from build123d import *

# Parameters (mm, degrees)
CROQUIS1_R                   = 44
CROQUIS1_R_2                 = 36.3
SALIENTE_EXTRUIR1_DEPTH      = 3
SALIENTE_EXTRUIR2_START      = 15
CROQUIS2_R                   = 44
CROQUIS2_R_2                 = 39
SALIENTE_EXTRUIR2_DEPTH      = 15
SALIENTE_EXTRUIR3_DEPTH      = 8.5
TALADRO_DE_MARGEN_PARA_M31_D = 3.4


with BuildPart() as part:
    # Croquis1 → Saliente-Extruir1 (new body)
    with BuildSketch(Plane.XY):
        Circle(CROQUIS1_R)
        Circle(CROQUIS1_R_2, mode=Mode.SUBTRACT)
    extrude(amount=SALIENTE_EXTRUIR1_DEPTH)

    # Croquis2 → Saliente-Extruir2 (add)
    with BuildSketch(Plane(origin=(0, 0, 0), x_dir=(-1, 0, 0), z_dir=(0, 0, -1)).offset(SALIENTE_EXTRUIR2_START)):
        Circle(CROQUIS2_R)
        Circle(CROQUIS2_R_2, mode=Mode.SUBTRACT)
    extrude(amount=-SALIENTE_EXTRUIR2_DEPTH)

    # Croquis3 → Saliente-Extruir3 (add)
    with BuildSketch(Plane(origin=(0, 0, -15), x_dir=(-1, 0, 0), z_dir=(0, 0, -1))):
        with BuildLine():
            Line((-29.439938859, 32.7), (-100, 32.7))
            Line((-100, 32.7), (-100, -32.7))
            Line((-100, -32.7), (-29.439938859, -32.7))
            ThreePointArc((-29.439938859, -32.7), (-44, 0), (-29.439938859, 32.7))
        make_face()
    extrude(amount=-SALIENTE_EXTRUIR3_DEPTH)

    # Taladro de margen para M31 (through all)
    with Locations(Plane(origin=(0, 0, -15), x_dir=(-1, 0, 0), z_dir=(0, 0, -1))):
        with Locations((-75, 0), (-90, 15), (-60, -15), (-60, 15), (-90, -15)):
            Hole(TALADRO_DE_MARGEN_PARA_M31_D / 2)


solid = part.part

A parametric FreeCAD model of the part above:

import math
import FreeCAD as App
import Part
import Sketcher

doc = App.newDocument("Part")
params = doc.addObject("Spreadsheet::Sheet", "Params")
for row, (alias, value) in enumerate([
    ("sketch1_diameter", "88 mm"),
    ("sketch1_diameter2", "72.6 mm"),
    ("pad1_length", "3 mm"),
    ("sketch2_diameter", "88 mm"),
    ("sketch2_diameter2", "78 mm"),
    ("pad2_length", "15 mm"),
    ("sketch3_radius", "44 mm"),
    ("sketch3_height", "65.4 mm"),
    ("pad3_length", "8.5 mm"),
    ("sketch4_diameter", "3.4 mm"),
    ("hole_diameter", "3.4 mm"),
], start=1):
    params.set(f"A{row}", alias)
    params.set(f"B{row}", "=" + value)
    params.setAlias(f"B{row}", alias)

body = doc.addObject("PartDesign::Body", "Body")

# Sketch on XY plane
sketch1 = body.newObject("Sketcher::SketchObject", "Sketch")
sketch1.AttachmentSupport = (doc.getObject("XY_Plane"), [""])
sketch1.MapMode = "FlatFace"
sketch1.addGeometry(Part.Circle(App.Vector(0, 0, 0), App.Vector(0, 0, 1), 44), False)
sketch1.addGeometry(Part.Circle(App.Vector(0, 0, 0), App.Vector(0, 0, 1), 36.3), False)
sketch1.addConstraint(Sketcher.Constraint("Coincident", 0, 3, -1, 1))
sketch1.addConstraint(Sketcher.Constraint("Coincident", 1, 3, -1, 1))
sketch1.addConstraint(Sketcher.Constraint("Diameter", 0, 88.0))
sketch1.addConstraint(Sketcher.Constraint("Diameter", 1, 72.6))
sketch1.setExpression("Constraints[2]", "Params.sketch1_diameter")
sketch1.setExpression("Constraints[3]", "Params.sketch1_diameter2")
pad1 = body.newObject("PartDesign::Pad", "Pad")
pad1.Profile = sketch1
pad1.setExpression("Length", "Params.pad1_length")

# Sketch on XY plane
sketch2 = body.newObject("Sketcher::SketchObject", "Sketch001")
sketch2.AttachmentSupport = (doc.getObject("XY_Plane"), [""])
sketch2.MapMode = "FlatFace"
sketch2.AttachmentOffset = App.Placement(App.Vector(0, 0, -15), App.Rotation())
sketch2.addGeometry(Part.Circle(App.Vector(0, 0, 0), App.Vector(0, 0, 1), 44), False)
sketch2.addGeometry(Part.Circle(App.Vector(0, 0, 0), App.Vector(0, 0, 1), 39), False)
sketch2.addConstraint(Sketcher.Constraint("Coincident", 0, 3, -1, 1))
sketch2.addConstraint(Sketcher.Constraint("Coincident", 1, 3, -1, 1))
sketch2.addConstraint(Sketcher.Constraint("Diameter", 0, 88.0))
sketch2.addConstraint(Sketcher.Constraint("Diameter", 1, 78.0))
sketch2.setExpression("Constraints[2]", "Params.sketch2_diameter")
sketch2.setExpression("Constraints[3]", "Params.sketch2_diameter2")
pad2 = body.newObject("PartDesign::Pad", "Pad001")
pad2.Profile = sketch2
pad2.setExpression("Length", "Params.pad2_length")

# Sketch on XY plane
sketch3 = body.newObject("Sketcher::SketchObject", "Sketch002")
sketch3.AttachmentSupport = (doc.getObject("XY_Plane"), [""])
sketch3.MapMode = "FlatFace"
sketch3.AttachmentOffset = App.Placement(App.Vector(0, 0, -15), App.Rotation())
sketch3.addGeometry(Part.LineSegment(App.Vector(29.439939, 32.7, 0), App.Vector(100, 32.7, 0)), False)
sketch3.addGeometry(Part.LineSegment(App.Vector(100, 32.7, 0), App.Vector(100, -32.7, 0)), False)
sketch3.addGeometry(Part.LineSegment(App.Vector(100, -32.7, 0), App.Vector(29.439939, -32.7, 0)), False)
sketch3.addGeometry(Part.ArcOfCircle(Part.Circle(App.Vector(0, 0, 0), App.Vector(0, 0, 1), 44), math.radians(-48.003168), math.radians(48.003168)), False)
sketch3.addConstraint(Sketcher.Constraint("Coincident", 0, 2, 1, 1))
sketch3.addConstraint(Sketcher.Constraint("Coincident", 1, 2, 2, 1))
sketch3.addConstraint(Sketcher.Constraint("Coincident", 2, 2, 3, 1))
sketch3.addConstraint(Sketcher.Constraint("Coincident", 3, 2, 0, 1))
sketch3.addConstraint(Sketcher.Constraint("Horizontal", 0))
sketch3.addConstraint(Sketcher.Constraint("Vertical", 1))
sketch3.addConstraint(Sketcher.Constraint("Horizontal", 2))
sketch3.addConstraint(Sketcher.Constraint("Coincident", 3, 3, -1, 1))
sketch3.addConstraint(Sketcher.Constraint("Vertical", 2, 2, 3, 2))
sketch3.addConstraint(Sketcher.Constraint("Radius", 3, 44.0))
sketch3.addConstraint(Sketcher.Constraint("DistanceY", 1, 2, 1, 1, 65.4))
sketch3.addConstraint(Sketcher.Constraint("DistanceX", -1, 1, 0, 2, 100.0))
sketch3.setExpression("Constraints[9]", "Params.sketch3_radius")
sketch3.setExpression("Constraints[10]", "Params.sketch3_height")
pad3 = body.newObject("PartDesign::Pad", "Pad002")
pad3.Profile = sketch3
pad3.setExpression("Length", "Params.pad3_length")

# Sketch on XY plane
sketch4 = body.newObject("Sketcher::SketchObject", "Sketch003")
sketch4.AttachmentSupport = (doc.getObject("XY_Plane"), [""])
sketch4.MapMode = "FlatFace"
sketch4.AttachmentOffset = App.Placement(App.Vector(0, 0, -15), App.Rotation())
sketch4.addGeometry(Part.Circle(App.Vector(75, 0, 0), App.Vector(0, 0, 1), 1.7), False)
sketch4.addGeometry(Part.Circle(App.Vector(90, 15, 0), App.Vector(0, 0, 1), 1.7), False)
sketch4.addGeometry(Part.Circle(App.Vector(60, -15, 0), App.Vector(0, 0, 1), 1.7), False)
sketch4.addGeometry(Part.Circle(App.Vector(60, 15, 0), App.Vector(0, 0, 1), 1.7), False)
sketch4.addGeometry(Part.Circle(App.Vector(90, -15, 0), App.Vector(0, 0, 1), 1.7), False)
sketch4.addConstraint(Sketcher.Constraint("Equal", 0, 1))
sketch4.addConstraint(Sketcher.Constraint("Equal", 1, 2))
sketch4.addConstraint(Sketcher.Constraint("Equal", 2, 3))
sketch4.addConstraint(Sketcher.Constraint("Equal", 3, 4))
sketch4.addConstraint(Sketcher.Constraint("Symmetric", 2, 3, 3, 3, -1))
sketch4.addConstraint(Sketcher.Constraint("Symmetric", 1, 3, 4, 3, -1))
sketch4.addConstraint(Sketcher.Constraint("PointOnObject", 0, 3, -1))
sketch4.addConstraint(Sketcher.Constraint("Horizontal", 1, 3, 3, 3))
sketch4.addConstraint(Sketcher.Constraint("Diameter", 0, 3.4))
sketch4.addConstraint(Sketcher.Constraint("DistanceX", -1, 1, 0, 3, 75.0))
sketch4.addConstraint(Sketcher.Constraint("DistanceX", -1, 1, 1, 3, 90.0))
sketch4.addConstraint(Sketcher.Constraint("DistanceY", -1, 1, 1, 3, 15.0))
sketch4.addConstraint(Sketcher.Constraint("DistanceX", -1, 1, 2, 3, 60.0))
sketch4.setExpression("Constraints[8]", "Params.sketch4_diameter")
doc.recompute()
hole = body.newObject("PartDesign::Hole", "Hole")
hole.Profile = sketch4
hole.ThreadType = "None"
hole.setExpression("Diameter", "Params.hole_diameter")
hole.DepthType = "ThroughAll"
hole.Reversed = True

doc.recompute()
